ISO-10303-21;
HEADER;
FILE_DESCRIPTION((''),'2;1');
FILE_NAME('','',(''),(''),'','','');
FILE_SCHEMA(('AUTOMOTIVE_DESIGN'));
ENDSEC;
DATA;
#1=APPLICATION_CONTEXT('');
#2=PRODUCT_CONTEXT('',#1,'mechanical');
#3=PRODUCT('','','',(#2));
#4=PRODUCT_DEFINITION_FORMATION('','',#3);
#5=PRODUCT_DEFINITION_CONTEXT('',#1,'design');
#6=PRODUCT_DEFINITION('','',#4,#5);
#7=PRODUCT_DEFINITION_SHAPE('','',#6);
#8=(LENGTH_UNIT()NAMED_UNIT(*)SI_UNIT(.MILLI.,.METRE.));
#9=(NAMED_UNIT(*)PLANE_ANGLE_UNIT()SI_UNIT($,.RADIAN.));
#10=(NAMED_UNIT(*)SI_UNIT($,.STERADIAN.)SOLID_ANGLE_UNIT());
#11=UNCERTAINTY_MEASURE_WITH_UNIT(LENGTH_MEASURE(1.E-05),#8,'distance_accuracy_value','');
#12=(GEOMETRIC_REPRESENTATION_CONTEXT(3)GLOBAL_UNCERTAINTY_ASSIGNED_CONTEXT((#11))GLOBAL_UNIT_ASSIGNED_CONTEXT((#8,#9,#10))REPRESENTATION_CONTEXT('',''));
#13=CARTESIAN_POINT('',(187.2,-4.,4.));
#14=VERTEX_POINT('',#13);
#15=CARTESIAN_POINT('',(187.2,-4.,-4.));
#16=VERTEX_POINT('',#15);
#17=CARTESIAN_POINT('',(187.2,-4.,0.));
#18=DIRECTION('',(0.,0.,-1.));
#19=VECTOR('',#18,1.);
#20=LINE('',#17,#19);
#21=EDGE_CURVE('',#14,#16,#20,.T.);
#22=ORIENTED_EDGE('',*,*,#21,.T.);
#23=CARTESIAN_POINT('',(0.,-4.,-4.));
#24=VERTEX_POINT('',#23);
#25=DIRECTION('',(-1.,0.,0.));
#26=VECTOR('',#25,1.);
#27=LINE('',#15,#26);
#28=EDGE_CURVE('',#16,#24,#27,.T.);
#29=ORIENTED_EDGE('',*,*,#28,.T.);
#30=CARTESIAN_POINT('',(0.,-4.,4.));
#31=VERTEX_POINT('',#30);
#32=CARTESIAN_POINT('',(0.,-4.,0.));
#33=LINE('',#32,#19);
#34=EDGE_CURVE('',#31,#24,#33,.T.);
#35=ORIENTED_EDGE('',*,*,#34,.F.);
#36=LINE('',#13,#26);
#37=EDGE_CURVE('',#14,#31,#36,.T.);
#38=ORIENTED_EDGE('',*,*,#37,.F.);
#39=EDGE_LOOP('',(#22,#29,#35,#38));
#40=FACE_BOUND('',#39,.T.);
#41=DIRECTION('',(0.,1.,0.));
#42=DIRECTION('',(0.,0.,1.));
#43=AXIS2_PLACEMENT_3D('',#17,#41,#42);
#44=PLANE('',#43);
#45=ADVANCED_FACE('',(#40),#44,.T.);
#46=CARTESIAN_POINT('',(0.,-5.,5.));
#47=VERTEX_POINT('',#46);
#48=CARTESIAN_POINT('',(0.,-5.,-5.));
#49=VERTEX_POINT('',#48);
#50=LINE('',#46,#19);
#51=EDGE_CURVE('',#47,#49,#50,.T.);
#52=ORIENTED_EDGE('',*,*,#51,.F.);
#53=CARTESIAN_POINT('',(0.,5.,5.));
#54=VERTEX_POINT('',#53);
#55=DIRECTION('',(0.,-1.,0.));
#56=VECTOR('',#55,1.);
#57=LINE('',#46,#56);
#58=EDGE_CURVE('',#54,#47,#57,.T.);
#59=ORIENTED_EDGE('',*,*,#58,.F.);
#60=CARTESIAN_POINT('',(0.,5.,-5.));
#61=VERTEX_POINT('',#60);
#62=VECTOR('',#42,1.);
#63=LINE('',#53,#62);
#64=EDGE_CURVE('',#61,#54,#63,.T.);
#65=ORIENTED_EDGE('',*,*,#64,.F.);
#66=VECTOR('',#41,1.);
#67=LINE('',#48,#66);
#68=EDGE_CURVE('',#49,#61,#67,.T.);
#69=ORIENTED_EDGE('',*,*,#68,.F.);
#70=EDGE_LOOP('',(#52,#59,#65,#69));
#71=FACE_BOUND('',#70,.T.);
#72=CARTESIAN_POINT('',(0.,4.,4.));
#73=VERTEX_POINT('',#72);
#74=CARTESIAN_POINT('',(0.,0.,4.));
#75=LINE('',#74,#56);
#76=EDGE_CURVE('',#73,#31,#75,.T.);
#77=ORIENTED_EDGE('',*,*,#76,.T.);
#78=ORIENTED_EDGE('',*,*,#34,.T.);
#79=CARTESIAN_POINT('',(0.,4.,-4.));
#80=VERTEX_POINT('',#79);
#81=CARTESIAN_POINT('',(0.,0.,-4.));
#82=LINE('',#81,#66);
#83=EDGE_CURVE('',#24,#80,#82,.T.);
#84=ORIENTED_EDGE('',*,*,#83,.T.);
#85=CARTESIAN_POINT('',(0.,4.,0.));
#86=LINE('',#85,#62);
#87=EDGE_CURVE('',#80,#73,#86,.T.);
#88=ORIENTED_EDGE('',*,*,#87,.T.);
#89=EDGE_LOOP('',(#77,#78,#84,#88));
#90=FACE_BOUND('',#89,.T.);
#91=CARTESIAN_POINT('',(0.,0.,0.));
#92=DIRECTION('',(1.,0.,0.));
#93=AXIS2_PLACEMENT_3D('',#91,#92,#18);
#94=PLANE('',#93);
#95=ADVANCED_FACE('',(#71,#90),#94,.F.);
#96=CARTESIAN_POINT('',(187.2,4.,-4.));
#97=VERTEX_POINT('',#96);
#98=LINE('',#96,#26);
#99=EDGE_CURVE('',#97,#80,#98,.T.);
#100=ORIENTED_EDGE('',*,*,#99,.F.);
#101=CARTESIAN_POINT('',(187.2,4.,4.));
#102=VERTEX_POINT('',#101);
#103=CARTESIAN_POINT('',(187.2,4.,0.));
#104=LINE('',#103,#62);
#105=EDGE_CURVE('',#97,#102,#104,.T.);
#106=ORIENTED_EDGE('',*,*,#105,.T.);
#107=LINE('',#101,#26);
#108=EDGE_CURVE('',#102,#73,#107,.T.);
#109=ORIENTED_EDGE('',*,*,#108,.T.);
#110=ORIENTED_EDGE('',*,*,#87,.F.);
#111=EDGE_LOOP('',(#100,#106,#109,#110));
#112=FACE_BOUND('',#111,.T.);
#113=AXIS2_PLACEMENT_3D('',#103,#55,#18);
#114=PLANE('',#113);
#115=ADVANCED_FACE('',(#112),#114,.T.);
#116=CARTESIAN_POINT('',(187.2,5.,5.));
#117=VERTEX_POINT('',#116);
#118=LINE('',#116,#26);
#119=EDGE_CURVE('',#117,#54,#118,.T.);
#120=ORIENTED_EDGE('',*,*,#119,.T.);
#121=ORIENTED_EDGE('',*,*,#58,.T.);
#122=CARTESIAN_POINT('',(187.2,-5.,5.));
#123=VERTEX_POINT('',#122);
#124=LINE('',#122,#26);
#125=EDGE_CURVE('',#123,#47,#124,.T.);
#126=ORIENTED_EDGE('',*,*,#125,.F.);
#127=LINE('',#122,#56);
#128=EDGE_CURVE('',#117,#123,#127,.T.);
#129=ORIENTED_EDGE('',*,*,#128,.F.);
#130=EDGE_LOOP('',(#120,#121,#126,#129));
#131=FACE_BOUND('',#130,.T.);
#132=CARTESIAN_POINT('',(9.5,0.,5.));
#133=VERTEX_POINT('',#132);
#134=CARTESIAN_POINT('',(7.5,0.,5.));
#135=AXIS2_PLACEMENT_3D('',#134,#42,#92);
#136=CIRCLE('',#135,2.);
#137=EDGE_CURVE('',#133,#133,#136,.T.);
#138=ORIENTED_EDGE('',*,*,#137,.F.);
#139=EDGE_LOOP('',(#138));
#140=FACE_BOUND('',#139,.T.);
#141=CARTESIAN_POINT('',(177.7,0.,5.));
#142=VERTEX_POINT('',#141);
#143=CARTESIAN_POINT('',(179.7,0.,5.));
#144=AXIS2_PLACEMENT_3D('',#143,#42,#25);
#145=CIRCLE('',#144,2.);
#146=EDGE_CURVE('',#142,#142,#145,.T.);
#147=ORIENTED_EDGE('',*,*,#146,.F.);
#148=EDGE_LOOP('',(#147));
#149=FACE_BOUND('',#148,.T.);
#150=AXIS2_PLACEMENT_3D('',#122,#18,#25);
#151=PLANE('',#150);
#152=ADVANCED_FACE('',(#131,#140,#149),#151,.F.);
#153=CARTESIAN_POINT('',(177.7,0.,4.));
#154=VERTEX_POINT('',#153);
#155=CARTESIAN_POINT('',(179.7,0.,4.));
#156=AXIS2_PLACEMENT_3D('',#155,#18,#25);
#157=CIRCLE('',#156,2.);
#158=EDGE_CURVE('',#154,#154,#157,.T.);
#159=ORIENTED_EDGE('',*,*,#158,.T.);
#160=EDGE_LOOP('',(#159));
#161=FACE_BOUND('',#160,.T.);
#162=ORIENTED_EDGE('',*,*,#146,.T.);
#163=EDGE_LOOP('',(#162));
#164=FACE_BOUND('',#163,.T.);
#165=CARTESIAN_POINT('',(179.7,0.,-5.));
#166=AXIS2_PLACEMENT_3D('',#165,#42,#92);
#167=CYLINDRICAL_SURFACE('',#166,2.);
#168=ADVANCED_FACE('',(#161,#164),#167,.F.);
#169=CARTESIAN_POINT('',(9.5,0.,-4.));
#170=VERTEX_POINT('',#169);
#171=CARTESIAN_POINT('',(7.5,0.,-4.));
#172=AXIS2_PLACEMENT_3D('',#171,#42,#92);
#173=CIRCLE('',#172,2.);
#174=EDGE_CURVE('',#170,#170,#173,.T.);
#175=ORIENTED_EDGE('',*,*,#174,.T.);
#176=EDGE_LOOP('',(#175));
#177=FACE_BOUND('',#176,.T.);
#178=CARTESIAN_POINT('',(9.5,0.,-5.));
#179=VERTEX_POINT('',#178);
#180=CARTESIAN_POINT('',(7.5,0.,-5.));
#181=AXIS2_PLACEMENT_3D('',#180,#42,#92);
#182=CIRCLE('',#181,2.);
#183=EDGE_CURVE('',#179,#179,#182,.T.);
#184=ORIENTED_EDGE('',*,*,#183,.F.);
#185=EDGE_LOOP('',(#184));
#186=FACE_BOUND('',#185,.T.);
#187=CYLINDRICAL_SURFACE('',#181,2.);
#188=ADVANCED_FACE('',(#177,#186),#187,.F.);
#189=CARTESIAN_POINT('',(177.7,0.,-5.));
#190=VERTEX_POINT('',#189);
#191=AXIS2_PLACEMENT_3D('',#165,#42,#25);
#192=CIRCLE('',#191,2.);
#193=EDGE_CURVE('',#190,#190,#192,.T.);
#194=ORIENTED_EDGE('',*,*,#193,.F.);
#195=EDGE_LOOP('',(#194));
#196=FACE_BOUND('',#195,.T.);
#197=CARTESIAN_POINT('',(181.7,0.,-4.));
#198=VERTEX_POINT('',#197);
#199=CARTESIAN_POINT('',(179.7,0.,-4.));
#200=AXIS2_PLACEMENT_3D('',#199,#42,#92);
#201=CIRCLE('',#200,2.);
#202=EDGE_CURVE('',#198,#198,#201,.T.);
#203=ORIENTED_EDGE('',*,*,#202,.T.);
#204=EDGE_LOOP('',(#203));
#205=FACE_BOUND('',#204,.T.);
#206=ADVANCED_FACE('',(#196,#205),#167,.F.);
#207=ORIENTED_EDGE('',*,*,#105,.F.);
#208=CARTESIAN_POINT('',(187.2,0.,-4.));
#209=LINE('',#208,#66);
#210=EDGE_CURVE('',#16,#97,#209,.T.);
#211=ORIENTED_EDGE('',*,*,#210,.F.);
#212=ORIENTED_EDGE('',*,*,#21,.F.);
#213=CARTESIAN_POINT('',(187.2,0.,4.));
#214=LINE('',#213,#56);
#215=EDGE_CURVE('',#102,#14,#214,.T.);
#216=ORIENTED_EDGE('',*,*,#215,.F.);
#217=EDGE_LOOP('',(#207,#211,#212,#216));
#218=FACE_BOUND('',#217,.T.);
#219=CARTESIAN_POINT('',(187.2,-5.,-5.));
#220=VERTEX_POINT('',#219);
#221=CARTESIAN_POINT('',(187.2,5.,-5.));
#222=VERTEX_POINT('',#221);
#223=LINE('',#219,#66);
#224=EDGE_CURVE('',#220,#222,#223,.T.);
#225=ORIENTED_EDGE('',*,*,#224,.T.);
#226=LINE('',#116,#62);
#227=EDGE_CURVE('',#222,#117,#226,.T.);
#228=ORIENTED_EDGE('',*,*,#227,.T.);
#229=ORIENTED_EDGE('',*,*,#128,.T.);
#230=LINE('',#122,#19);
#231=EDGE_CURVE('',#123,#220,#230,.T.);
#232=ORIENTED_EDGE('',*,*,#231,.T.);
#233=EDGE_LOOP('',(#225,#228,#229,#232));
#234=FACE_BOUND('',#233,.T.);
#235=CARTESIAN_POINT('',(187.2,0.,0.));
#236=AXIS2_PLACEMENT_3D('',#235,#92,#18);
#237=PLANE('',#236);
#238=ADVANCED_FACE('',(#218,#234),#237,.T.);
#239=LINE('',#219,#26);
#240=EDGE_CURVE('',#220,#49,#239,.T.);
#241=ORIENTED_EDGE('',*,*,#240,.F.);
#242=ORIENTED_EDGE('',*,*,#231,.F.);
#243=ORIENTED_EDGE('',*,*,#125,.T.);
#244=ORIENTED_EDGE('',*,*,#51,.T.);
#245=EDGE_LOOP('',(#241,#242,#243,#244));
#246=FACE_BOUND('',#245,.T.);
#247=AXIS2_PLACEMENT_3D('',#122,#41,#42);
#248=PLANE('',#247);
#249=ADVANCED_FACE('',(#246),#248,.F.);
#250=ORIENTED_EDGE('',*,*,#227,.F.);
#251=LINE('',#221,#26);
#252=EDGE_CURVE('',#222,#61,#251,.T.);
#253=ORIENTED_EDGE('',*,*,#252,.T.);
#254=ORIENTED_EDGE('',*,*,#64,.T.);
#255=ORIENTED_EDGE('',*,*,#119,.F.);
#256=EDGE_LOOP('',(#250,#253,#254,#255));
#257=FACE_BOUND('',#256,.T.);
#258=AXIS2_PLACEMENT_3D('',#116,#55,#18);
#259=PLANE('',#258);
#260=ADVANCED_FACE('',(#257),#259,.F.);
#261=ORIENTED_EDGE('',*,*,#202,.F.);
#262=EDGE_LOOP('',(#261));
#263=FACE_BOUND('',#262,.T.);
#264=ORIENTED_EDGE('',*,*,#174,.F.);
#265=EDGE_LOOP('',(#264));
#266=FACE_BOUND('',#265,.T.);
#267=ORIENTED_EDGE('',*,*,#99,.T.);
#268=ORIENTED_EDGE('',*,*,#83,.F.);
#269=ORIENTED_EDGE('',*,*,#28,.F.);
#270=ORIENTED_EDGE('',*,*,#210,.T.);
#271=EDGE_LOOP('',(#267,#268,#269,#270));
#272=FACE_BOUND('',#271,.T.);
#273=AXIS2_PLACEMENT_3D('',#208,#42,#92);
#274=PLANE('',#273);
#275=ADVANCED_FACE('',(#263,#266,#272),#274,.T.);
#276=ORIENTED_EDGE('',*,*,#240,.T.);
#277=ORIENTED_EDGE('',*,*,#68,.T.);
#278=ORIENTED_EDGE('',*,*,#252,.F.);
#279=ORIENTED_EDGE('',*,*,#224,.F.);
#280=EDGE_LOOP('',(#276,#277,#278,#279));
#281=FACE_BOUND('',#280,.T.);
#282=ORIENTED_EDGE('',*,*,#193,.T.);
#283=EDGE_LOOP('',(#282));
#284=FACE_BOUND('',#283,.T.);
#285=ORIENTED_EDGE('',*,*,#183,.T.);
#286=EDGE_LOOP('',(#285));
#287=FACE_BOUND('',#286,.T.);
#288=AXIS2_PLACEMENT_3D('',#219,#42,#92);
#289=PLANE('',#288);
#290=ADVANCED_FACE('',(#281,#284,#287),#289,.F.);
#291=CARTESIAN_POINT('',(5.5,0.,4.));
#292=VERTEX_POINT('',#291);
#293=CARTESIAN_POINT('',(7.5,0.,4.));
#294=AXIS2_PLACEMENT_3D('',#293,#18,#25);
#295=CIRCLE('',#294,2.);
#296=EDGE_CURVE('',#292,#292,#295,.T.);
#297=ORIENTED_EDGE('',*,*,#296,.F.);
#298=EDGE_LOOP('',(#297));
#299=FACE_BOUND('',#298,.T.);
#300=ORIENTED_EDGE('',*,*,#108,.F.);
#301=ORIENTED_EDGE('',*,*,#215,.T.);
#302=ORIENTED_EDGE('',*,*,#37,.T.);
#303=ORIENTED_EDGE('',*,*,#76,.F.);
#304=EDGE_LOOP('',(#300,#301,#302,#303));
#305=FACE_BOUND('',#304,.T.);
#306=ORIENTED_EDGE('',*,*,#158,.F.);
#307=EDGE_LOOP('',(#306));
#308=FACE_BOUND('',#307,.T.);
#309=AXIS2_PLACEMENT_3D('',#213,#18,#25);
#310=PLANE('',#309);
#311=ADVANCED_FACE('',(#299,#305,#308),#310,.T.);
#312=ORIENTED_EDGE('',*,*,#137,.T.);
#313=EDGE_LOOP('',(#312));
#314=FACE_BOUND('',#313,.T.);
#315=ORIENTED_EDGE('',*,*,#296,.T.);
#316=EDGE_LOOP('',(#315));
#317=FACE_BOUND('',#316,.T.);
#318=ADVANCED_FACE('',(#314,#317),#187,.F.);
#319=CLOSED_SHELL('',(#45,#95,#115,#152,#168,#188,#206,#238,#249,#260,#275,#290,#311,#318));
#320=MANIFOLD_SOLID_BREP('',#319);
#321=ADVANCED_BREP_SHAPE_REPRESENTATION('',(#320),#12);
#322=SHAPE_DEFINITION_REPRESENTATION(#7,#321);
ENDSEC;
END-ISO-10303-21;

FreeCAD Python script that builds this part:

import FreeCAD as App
import Part
import Sketcher
from FreeCAD import Vector
Q = App.Units.Quantity

doc = App.newDocument("Part")
body = doc.addObject("PartDesign::Body", "Body")

sketch1 = body.newObject("Sketcher::SketchObject", "Sketch")
sketch1.AttachmentSupport = (doc.getObject("YZ_Plane"), [""])
sketch1.MapMode = "FlatFace"
sketch1.addGeometry(Part.LineSegment(Vector(5, 5, 0), Vector(-5, 5, 0)), False)
sketch1.addGeometry(Part.LineSegment(Vector(-5, 5, 0), Vector(-5, -5, 0)), False)
sketch1.addGeometry(Part.LineSegment(Vector(-5, -5, 0), Vector(5, -5, 0)), False)
sketch1.addGeometry(Part.LineSegment(Vector(5, -5, 0), Vector(5, 5, 0)), False)
sketch1.addGeometry(Part.LineSegment(Vector(-4, -4, 0), Vector(-4, 4, 0)), False)
sketch1.addGeometry(Part.LineSegment(Vector(-4, 4, 0), Vector(4, 4, 0)), False)
sketch1.addGeometry(Part.LineSegment(Vector(4, 4, 0), Vector(4, -4, 0)), False)
sketch1.addGeometry(Part.LineSegment(Vector(4, -4, 0), Vector(-4, -4, 0)), False)
sketch1.addConstraint(Sketcher.Constraint("Coincident", 0, 2, 1, 1))
sketch1.addConstraint(Sketcher.Constraint("Coincident", 1, 2, 2, 1))
sketch1.addConstraint(Sketcher.Constraint("Coincident", 2, 2, 3, 1))
sketch1.addConstraint(Sketcher.Constraint("Coincident", 3, 2, 0, 1))
sketch1.addConstraint(Sketcher.Constraint("Coincident", 4, 2, 5, 1))
sketch1.addConstraint(Sketcher.Constraint("Coincident", 5, 2, 6, 1))
sketch1.addConstraint(Sketcher.Constraint("Coincident", 6, 2, 7, 1))
sketch1.addConstraint(Sketcher.Constraint("Coincident", 7, 2, 4, 1))
sketch1.addConstraint(Sketcher.Constraint("Horizontal", 0))
sketch1.addConstraint(Sketcher.Constraint("Vertical", 1))
sketch1.addConstraint(Sketcher.Constraint("Horizontal", 2))
sketch1.addConstraint(Sketcher.Constraint("Vertical", 3))
sketch1.addConstraint(Sketcher.Constraint("Vertical", 4))
sketch1.addConstraint(Sketcher.Constraint("Horizontal", 5))
sketch1.addConstraint(Sketcher.Constraint("Vertical", 6))
sketch1.addConstraint(Sketcher.Constraint("Horizontal", 7))
sketch1.addConstraint(Sketcher.Constraint("Symmetric", 0, 2, 2, 2, -1, 1))
sketch1.addConstraint(Sketcher.Constraint("Symmetric", 4, 2, 6, 2, -1, 1))
sketch1.addConstraint(Sketcher.Constraint("Equal", 2, 1))
sketch1.addConstraint(Sketcher.Constraint("Equal", 7, 4))
sketch1.addConstraint(Sketcher.Constraint("DistanceX", 0, 2, 0, 1, Q("10 mm")))
sketch1.addConstraint(Sketcher.Constraint("DistanceX", 5, 1, 5, 2, Q("8 mm")))
pad1 = body.newObject("PartDesign::Pad", "Pad")
pad1.Profile = sketch1
pad1.Length = 187.2

sketch2 = body.newObject("Sketcher::SketchObject", "Sketch001")
sketch2.AttachmentSupport = (doc.getObject("XY_Plane"), [""])
sketch2.MapMode = "FlatFace"
sketch2.AttachmentOffset = App.Placement(Vector(0, 0, 5), App.Rotation())
sketch2.addGeometry(Part.Circle(Vector(7.5, 0, 0), Vector(0, 0, 1), 2), False)
sketch2.addGeometry(Part.Circle(Vector(179.7, 0, 0), Vector(0, 0, 1), 2), False)
sketch2.addConstraint(Sketcher.Constraint("Equal", 0, 1))
sketch2.addConstraint(Sketcher.Constraint("PointOnObject", 0, 3, -1))
sketch2.addConstraint(Sketcher.Constraint("PointOnObject", 1, 3, -1))
sketch2.addConstraint(Sketcher.Constraint("Diameter", 0, Q("4 mm")))
sketch2.addConstraint(Sketcher.Constraint("DistanceX", -1, 1, 0, 3, Q("7.5 mm")))
sketch2.addConstraint(Sketcher.Constraint("DistanceX", -1, 1, 1, 3, Q("179.7 mm")))
pocket1 = body.newObject("PartDesign::Pocket", "Pocket")
pocket1.Profile = sketch2
pocket1.Type = "ThroughAll"

doc.recompute()
